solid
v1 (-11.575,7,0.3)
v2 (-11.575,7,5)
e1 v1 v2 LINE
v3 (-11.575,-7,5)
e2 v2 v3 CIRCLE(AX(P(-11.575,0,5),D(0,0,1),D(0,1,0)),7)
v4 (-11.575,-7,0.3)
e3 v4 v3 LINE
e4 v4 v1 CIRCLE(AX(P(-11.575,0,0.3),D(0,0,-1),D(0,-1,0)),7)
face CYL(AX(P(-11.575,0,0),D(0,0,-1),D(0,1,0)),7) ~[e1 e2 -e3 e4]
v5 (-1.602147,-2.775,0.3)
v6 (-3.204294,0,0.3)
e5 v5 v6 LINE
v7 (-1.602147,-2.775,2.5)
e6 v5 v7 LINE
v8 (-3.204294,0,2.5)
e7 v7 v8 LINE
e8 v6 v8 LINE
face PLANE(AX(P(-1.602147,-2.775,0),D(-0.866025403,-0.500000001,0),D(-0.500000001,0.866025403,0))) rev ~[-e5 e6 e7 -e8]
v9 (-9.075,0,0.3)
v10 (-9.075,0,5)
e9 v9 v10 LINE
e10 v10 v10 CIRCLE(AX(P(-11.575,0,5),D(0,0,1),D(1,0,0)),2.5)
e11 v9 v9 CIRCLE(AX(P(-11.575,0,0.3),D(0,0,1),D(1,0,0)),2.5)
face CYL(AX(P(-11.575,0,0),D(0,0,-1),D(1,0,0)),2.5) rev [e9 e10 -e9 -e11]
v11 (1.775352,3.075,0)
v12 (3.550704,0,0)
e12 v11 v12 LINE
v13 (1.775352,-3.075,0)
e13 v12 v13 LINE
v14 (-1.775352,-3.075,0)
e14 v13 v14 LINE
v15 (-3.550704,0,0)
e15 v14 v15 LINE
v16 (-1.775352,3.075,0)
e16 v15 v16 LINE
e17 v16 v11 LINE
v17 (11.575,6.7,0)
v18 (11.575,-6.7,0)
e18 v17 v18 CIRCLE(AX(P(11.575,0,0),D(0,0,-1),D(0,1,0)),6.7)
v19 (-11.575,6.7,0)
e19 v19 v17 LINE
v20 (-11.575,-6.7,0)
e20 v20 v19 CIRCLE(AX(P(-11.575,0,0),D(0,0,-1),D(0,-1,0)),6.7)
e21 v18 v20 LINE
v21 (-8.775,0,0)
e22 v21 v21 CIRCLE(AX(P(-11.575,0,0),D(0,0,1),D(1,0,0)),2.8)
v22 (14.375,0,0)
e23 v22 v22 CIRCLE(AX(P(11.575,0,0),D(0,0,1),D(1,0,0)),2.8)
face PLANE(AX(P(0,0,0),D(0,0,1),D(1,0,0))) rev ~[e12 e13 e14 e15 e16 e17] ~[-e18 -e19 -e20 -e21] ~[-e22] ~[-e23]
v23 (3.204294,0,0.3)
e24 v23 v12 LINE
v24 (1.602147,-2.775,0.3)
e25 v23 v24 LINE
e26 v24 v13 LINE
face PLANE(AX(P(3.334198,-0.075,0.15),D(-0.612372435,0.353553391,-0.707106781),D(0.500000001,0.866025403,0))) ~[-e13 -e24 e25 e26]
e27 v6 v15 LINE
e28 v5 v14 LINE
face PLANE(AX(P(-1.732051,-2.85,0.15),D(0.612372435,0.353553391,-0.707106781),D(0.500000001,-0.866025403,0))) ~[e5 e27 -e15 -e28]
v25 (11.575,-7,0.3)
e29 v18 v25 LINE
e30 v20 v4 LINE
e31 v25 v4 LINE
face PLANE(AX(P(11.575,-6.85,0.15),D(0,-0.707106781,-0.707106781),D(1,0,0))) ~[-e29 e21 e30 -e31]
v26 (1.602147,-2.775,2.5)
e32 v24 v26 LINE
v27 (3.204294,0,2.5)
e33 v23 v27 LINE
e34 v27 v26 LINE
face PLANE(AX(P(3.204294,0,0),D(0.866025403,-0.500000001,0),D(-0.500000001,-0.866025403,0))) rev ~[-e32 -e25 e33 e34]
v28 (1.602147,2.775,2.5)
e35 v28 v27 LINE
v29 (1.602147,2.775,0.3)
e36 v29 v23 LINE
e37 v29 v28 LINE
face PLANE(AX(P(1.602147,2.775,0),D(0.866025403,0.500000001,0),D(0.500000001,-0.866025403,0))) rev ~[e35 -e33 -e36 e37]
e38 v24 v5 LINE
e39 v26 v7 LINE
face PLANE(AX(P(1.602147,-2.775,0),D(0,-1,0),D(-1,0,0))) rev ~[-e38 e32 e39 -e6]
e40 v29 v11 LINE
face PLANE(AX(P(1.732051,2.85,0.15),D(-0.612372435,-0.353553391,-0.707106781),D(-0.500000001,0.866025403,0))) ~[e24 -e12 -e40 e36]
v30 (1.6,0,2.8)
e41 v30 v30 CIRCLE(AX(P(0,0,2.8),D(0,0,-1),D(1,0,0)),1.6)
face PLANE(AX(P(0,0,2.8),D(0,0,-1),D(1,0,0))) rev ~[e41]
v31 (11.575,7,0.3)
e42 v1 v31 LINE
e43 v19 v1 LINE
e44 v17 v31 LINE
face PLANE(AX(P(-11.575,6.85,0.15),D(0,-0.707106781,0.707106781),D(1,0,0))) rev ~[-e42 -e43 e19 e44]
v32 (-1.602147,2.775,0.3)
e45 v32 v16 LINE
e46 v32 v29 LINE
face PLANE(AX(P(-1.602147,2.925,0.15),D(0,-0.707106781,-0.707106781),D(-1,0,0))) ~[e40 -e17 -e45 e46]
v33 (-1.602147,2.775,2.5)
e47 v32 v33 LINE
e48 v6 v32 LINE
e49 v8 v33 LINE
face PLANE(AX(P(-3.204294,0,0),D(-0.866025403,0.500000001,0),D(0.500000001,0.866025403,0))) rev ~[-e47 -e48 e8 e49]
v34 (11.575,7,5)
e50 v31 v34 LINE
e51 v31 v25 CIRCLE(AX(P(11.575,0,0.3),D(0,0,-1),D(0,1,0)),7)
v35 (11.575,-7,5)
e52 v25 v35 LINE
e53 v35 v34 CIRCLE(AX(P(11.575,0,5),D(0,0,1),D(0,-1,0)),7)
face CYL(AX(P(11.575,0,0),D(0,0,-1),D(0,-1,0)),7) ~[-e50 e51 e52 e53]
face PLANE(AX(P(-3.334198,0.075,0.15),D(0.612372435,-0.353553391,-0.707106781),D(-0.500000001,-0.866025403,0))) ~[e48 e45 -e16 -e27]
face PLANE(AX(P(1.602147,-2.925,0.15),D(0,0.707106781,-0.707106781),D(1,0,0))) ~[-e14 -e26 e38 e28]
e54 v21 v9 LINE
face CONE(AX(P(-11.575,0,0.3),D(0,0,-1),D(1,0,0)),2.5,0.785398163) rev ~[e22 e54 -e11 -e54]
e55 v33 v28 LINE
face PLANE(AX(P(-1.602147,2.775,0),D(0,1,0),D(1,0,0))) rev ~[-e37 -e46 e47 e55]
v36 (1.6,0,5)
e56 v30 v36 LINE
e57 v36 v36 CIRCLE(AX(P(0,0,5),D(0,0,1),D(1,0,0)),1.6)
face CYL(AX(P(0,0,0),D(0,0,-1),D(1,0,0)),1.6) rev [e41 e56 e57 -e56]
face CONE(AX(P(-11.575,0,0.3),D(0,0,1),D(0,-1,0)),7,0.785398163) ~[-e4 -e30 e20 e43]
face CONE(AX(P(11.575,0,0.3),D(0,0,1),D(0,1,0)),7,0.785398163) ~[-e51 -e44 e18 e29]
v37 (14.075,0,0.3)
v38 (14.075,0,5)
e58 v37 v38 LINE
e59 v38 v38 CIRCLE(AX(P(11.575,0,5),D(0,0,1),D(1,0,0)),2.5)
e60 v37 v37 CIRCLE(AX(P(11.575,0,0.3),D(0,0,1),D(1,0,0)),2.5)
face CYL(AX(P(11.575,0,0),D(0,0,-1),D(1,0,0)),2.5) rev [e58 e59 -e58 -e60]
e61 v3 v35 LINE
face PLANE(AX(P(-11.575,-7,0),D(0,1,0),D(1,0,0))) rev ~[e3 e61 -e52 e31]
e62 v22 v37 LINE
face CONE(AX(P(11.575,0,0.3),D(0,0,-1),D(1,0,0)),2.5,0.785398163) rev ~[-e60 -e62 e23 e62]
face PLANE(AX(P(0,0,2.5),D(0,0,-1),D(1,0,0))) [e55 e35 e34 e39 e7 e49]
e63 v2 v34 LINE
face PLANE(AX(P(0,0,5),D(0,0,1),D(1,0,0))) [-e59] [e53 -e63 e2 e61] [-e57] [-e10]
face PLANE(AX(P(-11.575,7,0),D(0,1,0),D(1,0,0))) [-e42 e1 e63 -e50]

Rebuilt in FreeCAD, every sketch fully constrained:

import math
import FreeCAD as App
import Part
import Sketcher
Q = App.Units.Quantity


def edges_at(feature, points):
    """Names of the edges that pass closest to the given points."""
    edges = feature.Shape.Edges
    near = lambda p: min(range(len(edges)), key=lambda i: edges[i].distToShape(Part.Vertex(*p))[0])
    return sorted({f"Edge{near(p) + 1}" for p in points})


def add_polygon(sketch, points):
    """Adds a closed chain of lines whose ends are joined by coincident constraints."""
    first, n = sketch.GeometryCount, len(points)
    for a, b in zip(points, points[1:] + points[:1]):
        sketch.addGeometry(Part.LineSegment(App.Vector(*a, 0), App.Vector(*b, 0)), False)
    for i in range(n):
        sketch.addConstraint(Sketcher.Constraint("Coincident", first + i, 2, first + (i + 1) % n, 1))

doc = App.newDocument("Part")
params = doc.addObject("Spreadsheet::Sheet", "Params")
for row, (alias, value) in enumerate([
    ("sketch1_diameter", "5 mm"),
    ("sketch1_radius", "7 mm"),
    ("sketch1_diameter2", "3.2 mm"),
    ("sketch1_width", "23.15 mm"),
    ("pad1_length", "5 mm"),
    ("pocket1_length", "2.5 mm"),
    ("sketch3_diameter", "3.2 mm"),
    ("pad2_length", "0.3 mm"),
    ("chamfer_size", "0.3 mm"),
    ("chamfer2_size", "0.3 mm"),
], start=1):
    params.set(f"A{row}", alias)
    params.set(f"B{row}", "=" + value)
    params.setAlias(f"B{row}", alias)

body = doc.addObject("PartDesign::Body", "Body")

sketch1 = body.newObject("Sketcher::SketchObject", "Sketch")
sketch1.AttachmentSupport = (doc.getObject("XY_Plane"), [""])
sketch1.MapMode = "FlatFace"
sketch1.addGeometry([
    Part.ArcOfCircle(Part.Circle(App.Vector(-11.6, 0, 0), App.Vector(0, 0, 1), 7), math.radians(90), math.radians(270)),
    Part.LineSegment(App.Vector(-11.6, -7, 0), App.Vector(11.6, -7, 0)),
    Part.ArcOfCircle(Part.Circle(App.Vector(11.6, 0, 0), App.Vector(0, 0, 1), 7), math.radians(-90), math.radians(90)),
    Part.LineSegment(App.Vector(11.6, 7, 0), App.Vector(-11.6, 7, 0)),
    Part.Circle(App.Vector(-11.6, 0, 0), App.Vector(0, 0, 1), 2.5),
    Part.Circle(App.Vector(0, 0, 0), App.Vector(0, 0, 1), 1.6),
    Part.Circle(App.Vector(11.6, 0, 0), App.Vector(0, 0, 1), 2.5),
], False)
sketch1.addConstraint([
    Sketcher.Constraint("Tangent", 0, 2, 1, 1),
    Sketcher.Constraint("Tangent", 1, 2, 2, 1),
    Sketcher.Constraint("Tangent", 2, 2, 3, 1),
    Sketcher.Constraint("Tangent", 3, 2, 0, 1),
    Sketcher.Constraint("Horizontal", 1),
    Sketcher.Constraint("Horizontal", 3),
    Sketcher.Constraint("Coincident", 5, 3, -1, 1),
    Sketcher.Constraint("Coincident", 4, 3, 0, 3),
    Sketcher.Constraint("Coincident", 6, 3, 2, 3),
    Sketcher.Constraint("Equal", 4, 6),
    Sketcher.Constraint("Symmetric", 0, 3, 2, 3, -1, 1),
    Sketcher.Constraint("Diameter", 4, 5.0),
    Sketcher.Constraint("Radius", 0, 7.0),
    Sketcher.Constraint("Diameter", 5, 3.2),
    Sketcher.Constraint("DistanceX", 1, 1, 1, 2, 23.15),
])
sketch1.setExpression("Constraints[11]", "Params.sketch1_diameter")
sketch1.setExpression("Constraints[12]", "Params.sketch1_radius")
sketch1.setExpression("Constraints[13]", "Params.sketch1_diameter2")
sketch1.setExpression("Constraints[14]", "Params.sketch1_width")
pad1 = body.newObject("PartDesign::Pad", "Pad")
pad1.Profile = sketch1
pad1.setExpression("Length", "Params.pad1_length")

sketch2 = body.newObject("Sketcher::SketchObject", "Sketch001")
sketch2.AttachmentSupport = (doc.getObject("XY_Plane"), [""])
sketch2.MapMode = "FlatFace"
add_polygon(sketch2, [(1.6, -2.8), (-1.6, -2.8), (-3.2, 0), (-1.6, 2.8), (1.6, 2.8), (3.2, 0)])
sketch2.addConstraint([
    Sketcher.Constraint("Horizontal", 0),
    Sketcher.Constraint("Horizontal", 3),
    Sketcher.Constraint("Symmetric", 0, 2, 3, 2, -1, 1),
    Sketcher.Constraint("Symmetric", 1, 2, 4, 2, -1, 1),
    Sketcher.Constraint("PointOnObject", 1, 2, -1),
    Sketcher.Constraint("Parallel", 2, 5),
    Sketcher.Constraint("Vertical", 0, 2, 2, 2),
    Sketcher.Constraint("Angle", 1, Q("120 deg")),
    Sketcher.Constraint("DistanceY", 0, 2, 2, 2, 5.55),
    Sketcher.Constraint("DistanceX", 0, 2, 0, 1, 3.204294),
])
pocket1 = body.newObject("PartDesign::Pocket", "Pocket")
pocket1.Profile = sketch2
pocket1.setExpression("Length", "Params.pocket1_length")
pocket1.Reversed = True

sketch3 = body.newObject("Sketcher::SketchObject", "Sketch002")
sketch3.AttachmentSupport = (doc.getObject("XY_Plane"), [""])
sketch3.MapMode = "FlatFace"
sketch3.AttachmentOffset = App.Placement(App.Vector(0, 0, 2.5), App.Rotation())
sketch3.addGeometry(Part.Circle(App.Vector(0, 0, 0), App.Vector(0, 0, 1), 1.6), False)
sketch3.addConstraint([
    Sketcher.Constraint("Coincident", 0, 3, -1, 1),
    Sketcher.Constraint("Diameter", 0, 3.2),
])
sketch3.setExpression("Constraints[1]", "Params.sketch3_diameter")
pad2 = body.newObject("PartDesign::Pad", "Pad001")
pad2.Profile = sketch3
pad2.setExpression("Length", "Params.pad2_length")
doc.recompute()

chamfer = body.newObject("PartDesign::Chamfer", "Chamfer")
chamfer.Base = (pad2, edges_at(pad2, [
    (-14.075, 0, 0),
    (9.075, 0, 0),
    (2.403, -1.387, 0),
    (0, -2.775, 0),
    (-2.403, -1.387, 0),
    (-2.403, 1.387, 0),
    (0, 2.775, 0),
    (2.403, 1.387, 0),
]))
chamfer.setExpression("Size", "Params.chamfer_size")
doc.recompute()

chamfer2 = body.newObject("PartDesign::Chamfer", "Chamfer001")
chamfer2.Base = (chamfer, edges_at(chamfer, [(0, 7, 0)]))
chamfer2.setExpression("Size", "Params.chamfer2_size")

doc.recompute()
